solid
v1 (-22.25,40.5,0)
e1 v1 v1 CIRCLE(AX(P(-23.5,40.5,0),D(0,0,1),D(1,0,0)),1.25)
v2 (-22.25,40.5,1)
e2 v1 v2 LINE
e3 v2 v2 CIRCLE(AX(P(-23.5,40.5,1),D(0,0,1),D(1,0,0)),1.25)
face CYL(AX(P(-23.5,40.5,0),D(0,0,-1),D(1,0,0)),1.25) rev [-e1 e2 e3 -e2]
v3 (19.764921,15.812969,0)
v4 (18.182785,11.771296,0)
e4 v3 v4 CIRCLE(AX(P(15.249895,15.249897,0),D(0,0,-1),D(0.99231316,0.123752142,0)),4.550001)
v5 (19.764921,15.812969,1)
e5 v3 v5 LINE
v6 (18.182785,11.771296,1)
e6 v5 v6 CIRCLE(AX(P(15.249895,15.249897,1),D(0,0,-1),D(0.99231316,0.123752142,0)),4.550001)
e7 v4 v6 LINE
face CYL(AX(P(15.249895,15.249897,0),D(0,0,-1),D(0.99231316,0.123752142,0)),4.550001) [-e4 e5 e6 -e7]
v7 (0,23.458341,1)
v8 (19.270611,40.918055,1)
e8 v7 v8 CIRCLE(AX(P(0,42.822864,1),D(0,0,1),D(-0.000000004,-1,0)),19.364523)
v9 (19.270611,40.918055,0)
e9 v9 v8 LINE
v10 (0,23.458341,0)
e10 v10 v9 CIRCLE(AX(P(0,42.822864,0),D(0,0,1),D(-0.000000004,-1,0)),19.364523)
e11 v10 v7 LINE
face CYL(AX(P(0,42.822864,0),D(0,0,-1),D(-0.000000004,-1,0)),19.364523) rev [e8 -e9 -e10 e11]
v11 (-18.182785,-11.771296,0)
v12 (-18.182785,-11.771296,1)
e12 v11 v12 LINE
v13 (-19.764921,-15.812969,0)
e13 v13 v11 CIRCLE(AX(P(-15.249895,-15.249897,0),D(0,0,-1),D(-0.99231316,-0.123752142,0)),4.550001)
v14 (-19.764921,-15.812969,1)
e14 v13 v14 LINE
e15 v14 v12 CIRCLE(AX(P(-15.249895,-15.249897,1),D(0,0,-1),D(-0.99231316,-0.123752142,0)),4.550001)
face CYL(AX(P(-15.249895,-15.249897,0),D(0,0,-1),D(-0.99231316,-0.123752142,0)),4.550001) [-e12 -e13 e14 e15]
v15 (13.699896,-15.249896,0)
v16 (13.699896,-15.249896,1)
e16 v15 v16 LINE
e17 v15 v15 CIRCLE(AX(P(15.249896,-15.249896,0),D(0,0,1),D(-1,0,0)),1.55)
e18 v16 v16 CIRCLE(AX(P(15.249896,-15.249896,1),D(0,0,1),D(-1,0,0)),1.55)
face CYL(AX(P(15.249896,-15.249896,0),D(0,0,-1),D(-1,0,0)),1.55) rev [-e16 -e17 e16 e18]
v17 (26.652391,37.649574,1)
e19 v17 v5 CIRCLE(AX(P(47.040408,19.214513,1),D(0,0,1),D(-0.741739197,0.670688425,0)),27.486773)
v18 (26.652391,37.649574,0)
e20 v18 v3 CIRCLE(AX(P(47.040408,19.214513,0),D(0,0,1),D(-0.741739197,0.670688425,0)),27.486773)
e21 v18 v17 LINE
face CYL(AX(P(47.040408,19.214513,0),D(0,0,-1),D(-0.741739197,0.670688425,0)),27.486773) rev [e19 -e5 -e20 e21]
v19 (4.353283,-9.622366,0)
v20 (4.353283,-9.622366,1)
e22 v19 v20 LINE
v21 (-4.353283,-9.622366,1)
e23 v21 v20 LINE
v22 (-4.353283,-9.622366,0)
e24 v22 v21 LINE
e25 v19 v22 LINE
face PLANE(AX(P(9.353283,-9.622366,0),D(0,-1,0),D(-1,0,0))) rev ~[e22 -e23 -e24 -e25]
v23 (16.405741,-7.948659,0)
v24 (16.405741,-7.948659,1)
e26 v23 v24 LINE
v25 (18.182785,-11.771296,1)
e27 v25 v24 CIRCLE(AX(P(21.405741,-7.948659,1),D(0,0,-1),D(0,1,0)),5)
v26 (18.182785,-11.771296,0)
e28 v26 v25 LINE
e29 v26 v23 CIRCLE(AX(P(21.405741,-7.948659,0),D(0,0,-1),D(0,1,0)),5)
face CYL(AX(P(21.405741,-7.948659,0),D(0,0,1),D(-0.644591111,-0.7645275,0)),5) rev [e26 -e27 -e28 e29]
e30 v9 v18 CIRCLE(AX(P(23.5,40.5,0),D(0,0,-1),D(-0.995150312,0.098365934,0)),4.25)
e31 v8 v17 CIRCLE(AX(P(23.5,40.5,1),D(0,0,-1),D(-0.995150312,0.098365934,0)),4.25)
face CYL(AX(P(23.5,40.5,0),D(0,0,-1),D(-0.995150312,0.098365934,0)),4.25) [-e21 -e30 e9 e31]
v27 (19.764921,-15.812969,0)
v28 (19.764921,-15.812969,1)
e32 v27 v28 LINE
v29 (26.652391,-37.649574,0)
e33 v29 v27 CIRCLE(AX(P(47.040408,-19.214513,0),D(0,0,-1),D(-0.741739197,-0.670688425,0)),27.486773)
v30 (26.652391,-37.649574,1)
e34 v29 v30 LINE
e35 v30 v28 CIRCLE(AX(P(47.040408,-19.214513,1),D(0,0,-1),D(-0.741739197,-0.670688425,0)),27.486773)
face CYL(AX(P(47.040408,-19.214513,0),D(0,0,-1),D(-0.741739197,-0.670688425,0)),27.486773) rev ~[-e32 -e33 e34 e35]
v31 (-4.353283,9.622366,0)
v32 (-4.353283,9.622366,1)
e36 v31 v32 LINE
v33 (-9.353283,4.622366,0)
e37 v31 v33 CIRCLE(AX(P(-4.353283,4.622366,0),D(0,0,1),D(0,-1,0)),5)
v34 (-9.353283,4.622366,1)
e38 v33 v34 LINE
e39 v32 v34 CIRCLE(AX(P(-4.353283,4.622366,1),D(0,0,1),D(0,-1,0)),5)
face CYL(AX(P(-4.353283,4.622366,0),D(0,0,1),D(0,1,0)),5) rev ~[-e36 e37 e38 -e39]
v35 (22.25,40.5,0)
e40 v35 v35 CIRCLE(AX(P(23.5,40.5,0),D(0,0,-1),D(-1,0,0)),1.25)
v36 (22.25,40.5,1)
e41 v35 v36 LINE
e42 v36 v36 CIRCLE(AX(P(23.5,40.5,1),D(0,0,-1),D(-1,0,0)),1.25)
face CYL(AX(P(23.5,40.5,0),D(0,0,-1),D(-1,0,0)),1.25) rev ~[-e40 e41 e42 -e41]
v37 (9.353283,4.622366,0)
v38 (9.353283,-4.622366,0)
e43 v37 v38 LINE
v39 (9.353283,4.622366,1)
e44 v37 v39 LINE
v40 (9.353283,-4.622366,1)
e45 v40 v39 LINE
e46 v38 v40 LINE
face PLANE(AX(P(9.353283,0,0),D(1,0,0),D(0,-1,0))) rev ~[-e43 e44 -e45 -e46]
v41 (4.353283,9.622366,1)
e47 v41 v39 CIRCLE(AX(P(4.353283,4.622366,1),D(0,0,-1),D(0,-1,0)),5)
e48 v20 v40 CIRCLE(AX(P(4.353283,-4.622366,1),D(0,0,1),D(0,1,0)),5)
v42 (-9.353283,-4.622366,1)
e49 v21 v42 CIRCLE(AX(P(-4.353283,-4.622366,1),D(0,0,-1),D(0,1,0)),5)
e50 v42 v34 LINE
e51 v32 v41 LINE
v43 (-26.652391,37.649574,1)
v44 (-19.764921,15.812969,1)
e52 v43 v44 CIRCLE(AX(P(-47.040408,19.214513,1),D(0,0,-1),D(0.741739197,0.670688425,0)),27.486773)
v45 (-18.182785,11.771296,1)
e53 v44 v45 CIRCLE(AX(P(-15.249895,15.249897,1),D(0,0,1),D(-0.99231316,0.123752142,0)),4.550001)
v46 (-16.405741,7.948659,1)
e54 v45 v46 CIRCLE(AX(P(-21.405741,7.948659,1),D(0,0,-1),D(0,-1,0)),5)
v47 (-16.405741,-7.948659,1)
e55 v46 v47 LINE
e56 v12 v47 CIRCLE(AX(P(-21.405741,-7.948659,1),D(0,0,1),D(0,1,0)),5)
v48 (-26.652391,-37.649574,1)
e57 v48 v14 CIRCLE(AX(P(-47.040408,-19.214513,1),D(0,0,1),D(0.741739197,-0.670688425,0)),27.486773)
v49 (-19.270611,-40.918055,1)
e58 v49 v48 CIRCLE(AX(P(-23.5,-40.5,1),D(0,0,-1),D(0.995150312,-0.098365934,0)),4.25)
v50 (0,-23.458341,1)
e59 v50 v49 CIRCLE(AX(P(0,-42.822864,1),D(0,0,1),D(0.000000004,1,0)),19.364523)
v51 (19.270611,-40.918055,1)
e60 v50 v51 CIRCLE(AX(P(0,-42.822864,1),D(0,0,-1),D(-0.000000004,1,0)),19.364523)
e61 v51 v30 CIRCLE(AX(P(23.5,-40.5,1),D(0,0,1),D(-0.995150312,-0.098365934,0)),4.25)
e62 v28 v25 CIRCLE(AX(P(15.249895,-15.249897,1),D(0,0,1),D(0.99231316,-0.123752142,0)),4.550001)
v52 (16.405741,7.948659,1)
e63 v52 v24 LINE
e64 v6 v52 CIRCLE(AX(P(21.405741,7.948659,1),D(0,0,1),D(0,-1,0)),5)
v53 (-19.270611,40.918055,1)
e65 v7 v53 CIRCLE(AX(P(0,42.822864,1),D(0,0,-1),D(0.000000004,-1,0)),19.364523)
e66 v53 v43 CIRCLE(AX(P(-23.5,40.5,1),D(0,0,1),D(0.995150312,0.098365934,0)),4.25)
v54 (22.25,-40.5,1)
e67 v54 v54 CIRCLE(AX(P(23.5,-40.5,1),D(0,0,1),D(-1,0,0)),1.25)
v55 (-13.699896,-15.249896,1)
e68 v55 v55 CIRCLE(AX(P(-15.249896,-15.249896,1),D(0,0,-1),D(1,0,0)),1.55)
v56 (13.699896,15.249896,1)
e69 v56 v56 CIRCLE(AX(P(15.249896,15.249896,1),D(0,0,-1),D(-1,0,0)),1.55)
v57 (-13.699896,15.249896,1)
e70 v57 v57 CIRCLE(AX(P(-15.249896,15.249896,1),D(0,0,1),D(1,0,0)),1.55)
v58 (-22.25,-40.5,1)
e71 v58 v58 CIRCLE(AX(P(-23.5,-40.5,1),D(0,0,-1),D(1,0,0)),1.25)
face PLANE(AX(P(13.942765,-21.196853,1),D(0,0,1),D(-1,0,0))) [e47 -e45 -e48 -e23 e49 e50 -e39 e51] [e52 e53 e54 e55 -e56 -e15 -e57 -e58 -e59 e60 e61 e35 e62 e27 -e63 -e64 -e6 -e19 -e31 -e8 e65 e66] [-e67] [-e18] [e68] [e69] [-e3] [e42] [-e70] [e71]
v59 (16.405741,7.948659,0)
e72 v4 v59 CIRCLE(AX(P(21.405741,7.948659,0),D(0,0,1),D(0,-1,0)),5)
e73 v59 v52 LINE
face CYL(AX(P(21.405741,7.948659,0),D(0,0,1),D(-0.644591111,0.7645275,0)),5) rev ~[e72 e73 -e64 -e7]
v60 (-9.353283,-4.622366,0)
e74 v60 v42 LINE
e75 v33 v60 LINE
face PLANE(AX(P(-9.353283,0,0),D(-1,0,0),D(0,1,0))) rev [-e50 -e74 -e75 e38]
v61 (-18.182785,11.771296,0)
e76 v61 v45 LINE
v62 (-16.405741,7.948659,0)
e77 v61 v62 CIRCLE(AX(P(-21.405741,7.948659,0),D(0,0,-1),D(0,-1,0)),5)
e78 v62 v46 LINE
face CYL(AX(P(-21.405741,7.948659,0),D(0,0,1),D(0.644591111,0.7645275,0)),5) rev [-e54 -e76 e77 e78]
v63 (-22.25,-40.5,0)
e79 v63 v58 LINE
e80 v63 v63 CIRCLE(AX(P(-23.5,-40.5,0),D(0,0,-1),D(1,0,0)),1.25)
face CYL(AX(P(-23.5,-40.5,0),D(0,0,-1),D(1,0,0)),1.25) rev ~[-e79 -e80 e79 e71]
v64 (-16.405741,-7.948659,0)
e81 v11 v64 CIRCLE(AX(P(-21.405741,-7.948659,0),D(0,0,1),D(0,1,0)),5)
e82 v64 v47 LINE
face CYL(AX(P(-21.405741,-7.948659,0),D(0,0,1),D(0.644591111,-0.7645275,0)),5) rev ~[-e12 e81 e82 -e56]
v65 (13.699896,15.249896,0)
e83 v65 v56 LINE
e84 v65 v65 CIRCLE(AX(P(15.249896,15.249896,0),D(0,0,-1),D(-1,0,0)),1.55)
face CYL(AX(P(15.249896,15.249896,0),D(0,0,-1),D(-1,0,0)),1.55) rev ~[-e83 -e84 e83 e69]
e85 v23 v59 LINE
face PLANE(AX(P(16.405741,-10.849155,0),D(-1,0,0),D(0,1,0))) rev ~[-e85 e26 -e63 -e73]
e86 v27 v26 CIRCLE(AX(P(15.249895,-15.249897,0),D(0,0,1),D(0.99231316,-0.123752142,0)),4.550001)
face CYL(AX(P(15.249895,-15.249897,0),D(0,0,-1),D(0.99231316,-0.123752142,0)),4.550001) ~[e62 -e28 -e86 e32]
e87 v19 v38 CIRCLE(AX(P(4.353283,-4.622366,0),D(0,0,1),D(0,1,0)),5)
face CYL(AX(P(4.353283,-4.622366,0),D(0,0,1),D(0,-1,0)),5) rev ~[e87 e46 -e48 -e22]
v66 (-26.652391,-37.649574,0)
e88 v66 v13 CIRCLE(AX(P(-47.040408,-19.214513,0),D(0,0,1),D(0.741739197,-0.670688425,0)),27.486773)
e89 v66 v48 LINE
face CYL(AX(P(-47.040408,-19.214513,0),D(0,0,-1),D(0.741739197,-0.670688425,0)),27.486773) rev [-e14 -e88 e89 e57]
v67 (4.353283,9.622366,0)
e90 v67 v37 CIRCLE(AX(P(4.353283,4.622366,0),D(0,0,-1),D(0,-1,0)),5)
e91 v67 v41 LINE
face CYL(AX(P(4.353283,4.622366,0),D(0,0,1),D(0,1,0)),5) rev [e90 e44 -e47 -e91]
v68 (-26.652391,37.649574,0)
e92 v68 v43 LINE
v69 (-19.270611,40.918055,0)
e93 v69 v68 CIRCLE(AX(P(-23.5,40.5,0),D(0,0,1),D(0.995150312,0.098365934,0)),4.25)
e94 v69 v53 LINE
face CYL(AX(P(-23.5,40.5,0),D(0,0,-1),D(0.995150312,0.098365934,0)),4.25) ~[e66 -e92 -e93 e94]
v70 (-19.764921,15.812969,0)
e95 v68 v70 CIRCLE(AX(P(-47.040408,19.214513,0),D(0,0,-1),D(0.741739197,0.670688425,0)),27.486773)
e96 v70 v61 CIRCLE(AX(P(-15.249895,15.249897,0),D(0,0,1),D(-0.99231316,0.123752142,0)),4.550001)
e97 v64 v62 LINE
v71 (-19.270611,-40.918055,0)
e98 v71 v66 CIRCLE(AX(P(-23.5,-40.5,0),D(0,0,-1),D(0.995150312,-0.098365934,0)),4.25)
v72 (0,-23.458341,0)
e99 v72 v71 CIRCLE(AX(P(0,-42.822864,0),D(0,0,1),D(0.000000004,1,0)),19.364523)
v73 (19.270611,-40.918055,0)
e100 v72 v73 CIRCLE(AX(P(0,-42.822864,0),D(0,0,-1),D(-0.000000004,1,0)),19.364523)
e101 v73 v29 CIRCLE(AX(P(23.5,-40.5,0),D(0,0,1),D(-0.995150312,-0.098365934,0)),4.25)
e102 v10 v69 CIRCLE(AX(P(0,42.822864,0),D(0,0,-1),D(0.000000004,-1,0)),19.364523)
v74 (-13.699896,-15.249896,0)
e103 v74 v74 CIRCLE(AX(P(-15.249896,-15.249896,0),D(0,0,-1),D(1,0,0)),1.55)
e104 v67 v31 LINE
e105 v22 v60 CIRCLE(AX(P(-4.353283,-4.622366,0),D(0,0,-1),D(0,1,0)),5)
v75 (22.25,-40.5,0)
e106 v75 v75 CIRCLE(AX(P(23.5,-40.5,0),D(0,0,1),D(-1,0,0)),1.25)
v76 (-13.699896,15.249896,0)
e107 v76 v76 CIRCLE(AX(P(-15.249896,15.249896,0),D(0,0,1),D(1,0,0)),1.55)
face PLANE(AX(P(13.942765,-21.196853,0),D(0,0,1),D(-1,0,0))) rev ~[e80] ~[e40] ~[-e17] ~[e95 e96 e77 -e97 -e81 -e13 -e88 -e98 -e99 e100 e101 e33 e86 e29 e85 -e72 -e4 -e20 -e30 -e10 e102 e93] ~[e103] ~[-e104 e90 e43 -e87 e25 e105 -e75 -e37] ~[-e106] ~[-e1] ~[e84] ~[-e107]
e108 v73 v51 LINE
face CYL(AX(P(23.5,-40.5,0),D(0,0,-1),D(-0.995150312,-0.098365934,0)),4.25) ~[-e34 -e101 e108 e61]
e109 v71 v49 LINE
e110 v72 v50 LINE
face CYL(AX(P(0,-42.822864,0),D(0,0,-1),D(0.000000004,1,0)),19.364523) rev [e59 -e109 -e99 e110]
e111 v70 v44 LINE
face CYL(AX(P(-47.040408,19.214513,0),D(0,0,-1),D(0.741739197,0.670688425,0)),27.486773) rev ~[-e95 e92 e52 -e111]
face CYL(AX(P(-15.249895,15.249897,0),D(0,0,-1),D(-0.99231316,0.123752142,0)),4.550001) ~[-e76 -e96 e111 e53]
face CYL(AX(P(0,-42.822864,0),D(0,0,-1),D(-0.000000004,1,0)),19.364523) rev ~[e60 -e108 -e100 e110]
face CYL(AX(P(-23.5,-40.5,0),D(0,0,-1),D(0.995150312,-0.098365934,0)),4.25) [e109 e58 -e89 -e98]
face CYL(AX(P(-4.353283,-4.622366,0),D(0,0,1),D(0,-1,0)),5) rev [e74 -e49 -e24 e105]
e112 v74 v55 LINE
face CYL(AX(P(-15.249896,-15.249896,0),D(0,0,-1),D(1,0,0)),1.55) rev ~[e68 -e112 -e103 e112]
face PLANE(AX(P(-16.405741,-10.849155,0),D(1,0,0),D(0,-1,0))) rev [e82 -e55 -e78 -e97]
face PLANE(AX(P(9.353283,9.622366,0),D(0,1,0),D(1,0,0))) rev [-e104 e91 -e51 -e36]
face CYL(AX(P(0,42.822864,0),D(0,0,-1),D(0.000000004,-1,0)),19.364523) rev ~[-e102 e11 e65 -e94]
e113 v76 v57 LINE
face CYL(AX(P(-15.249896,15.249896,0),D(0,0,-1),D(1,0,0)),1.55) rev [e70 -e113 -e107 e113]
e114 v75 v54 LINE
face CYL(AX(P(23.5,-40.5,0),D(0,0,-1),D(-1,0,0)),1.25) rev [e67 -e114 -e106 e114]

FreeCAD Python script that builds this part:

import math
import FreeCAD as App
import Part
import Sketcher


def edges_at(feature, points):
    """Names of the edges that pass closest to the given points."""
    edges = feature.Shape.Edges
    near = lambda p: min(range(len(edges)), key=lambda i: edges[i].distToShape(Part.Vertex(*p))[0])
    return sorted({f"Edge{near(p) + 1}" for p in points})

doc = App.newDocument("Part")
body = doc.addObject("PartDesign::Body", "Body")

# Sketch on XY plane
sketch1 = body.newObject("Sketcher::SketchObject", "Sketch")
sketch1.AttachmentSupport = (doc.getObject("XY_Plane"), [""])
sketch1.MapMode = "FlatFace"
sketch1.addGeometry([
    Part.ArcOfCircle(Part.Circle(App.Vector(0, 42.822864, 0), App.Vector(0, 0, 1), 19.364523), math.radians(-174.35492), math.radians(-90)),  # 0
    Part.ArcOfCircle(Part.Circle(App.Vector(-23.5, 40.5, 0), App.Vector(0, 0, 1), 4.25), math.radians(5.645081), math.radians(222.120222)),  # 1
    Part.ArcOfCircle(Part.Circle(App.Vector(-47.040408, 19.214513, 0), App.Vector(0, 0, 1), 27.486773), math.radians(-7.108694), math.radians(42.12022)),  # 2
    Part.ArcOfCircle(Part.Circle(App.Vector(-15.249895, 15.249897, 0), App.Vector(0, 0, 1), 4.550001), math.radians(172.891301), math.radians(255.283769)),  # 3
    Part.LineSegment(App.Vector(-16.405741, 10.849155, 0), App.Vector(-16.405741, 0, 0)),  # 4
    Part.LineSegment(App.Vector(-16.405741, 0, 0), App.Vector(-9.353283, 0, 0)),  # 5
    Part.LineSegment(App.Vector(-9.353283, 0, 0), App.Vector(-9.353283, 9.622366, 0)),  # 6
    Part.LineSegment(App.Vector(-9.353283, 9.622366, 0), App.Vector(0, 9.622366, 0)),  # 7
    Part.LineSegment(App.Vector(0, 9.622366, 0), App.Vector(0, 23.458341, 0)),  # 8
    Part.Circle(App.Vector(-15.249896, 15.249896, 0), App.Vector(0, 0, 1), 1.55),  # 9
    Part.Circle(App.Vector(-23.5, 40.5, 0), App.Vector(0, 0, 1), 1.25),  # 10
], False)
sketch1.addConstraint([
    Sketcher.Constraint("Tangent", 0, 1, 1, 1),
    Sketcher.Constraint("Tangent", 1, 2, 2, 2),
    Sketcher.Constraint("Tangent", 2, 1, 3, 1),
    Sketcher.Constraint("Coincident", 3, 2, 4, 1),
    Sketcher.Constraint("Coincident", 4, 2, 5, 1),
    Sketcher.Constraint("Coincident", 5, 2, 6, 1),
    Sketcher.Constraint("Coincident", 6, 2, 7, 1),
    Sketcher.Constraint("Coincident", 7, 2, 8, 1),
    Sketcher.Constraint("Coincident", 8, 2, 0, 2),
    Sketcher.Constraint("Vertical", 4),
    Sketcher.Constraint("Horizontal", 5),
    Sketcher.Constraint("Vertical", 6),
    Sketcher.Constraint("Horizontal", 7),
    Sketcher.Constraint("Vertical", 8),
    Sketcher.Constraint("Coincident", 9, 3, 3, 3),
    Sketcher.Constraint("Coincident", 10, 3, 1, 3),
    Sketcher.Constraint("PointOnObject", 0, 3, -2),
    Sketcher.Constraint("PointOnObject", 4, 2, -1),
    Sketcher.Constraint("PointOnObject", 7, 2, -2),
    Sketcher.Constraint("Diameter", 9, 3.1),
    Sketcher.Constraint("Diameter", 10, 2.5),
    Sketcher.Constraint("Radius", 1, 4.25),
    Sketcher.Constraint("Radius", 3, 4.550001),
    Sketcher.Constraint("DistanceX", 1, 3, -1, 1, 23.5),
    Sketcher.Constraint("DistanceY", -1, 1, 1, 3, 40.5),
    Sketcher.Constraint("Radius", 0, 19.364523),
    Sketcher.Constraint("Radius", 2, 27.486773),
    Sketcher.Constraint("DistanceY", 3, 2, 0, 1, 30.0689),
    Sketcher.Constraint("DistanceX", 5, 1, 5, 2, 7.052458),
    Sketcher.Constraint("DistanceX", 7, 1, 7, 2, 9.353283),
    Sketcher.Constraint("DistanceY", 6, 1, 6, 2, 9.622366),
    Sketcher.Constraint("DistanceX", 2, 3, -1, 1, 47.040408),
])
pad1 = body.newObject("PartDesign::Pad", "Pad")
pad1.Profile = sketch1
pad1.Length = 1
doc.recompute()

fillet = body.newObject("PartDesign::Fillet", "Fillet")
fillet.Base = (pad1, edges_at(pad1, [(-9.353, 9.622, 0.5), (-16.406, 10.849, 0.5)]))
fillet.Radius = 5
body2 = doc.addObject("PartDesign::Body", "Body001")
doc.recompute()

body2.BaseFeature = body
doc.recompute()

mirroring = doc.addObject("Part::Mirroring", "Mirroring")
mirroring.Source = body
mirroring.Base = App.Vector(-12.879512, 0, 0.5)
mirroring.Normal = App.Vector(0, -1, 0)
body3 = doc.addObject("PartDesign::Body", "Body002")
body3.BaseFeature = mirroring
boolean = body2.newObject("PartDesign::Boolean", "Boolean")
boolean.Type = "Fuse"
boolean.addObjects([body3])
doc.recompute()
body4 = doc.addObject("PartDesign::Body", "Body003")
doc.recompute()

body4.BaseFeature = body2
doc.recompute()

mirroring2 = doc.addObject("Part::Mirroring", "Mirroring001")
mirroring2.Source = body2
mirroring2.Base = App.Vector(0, 16.540354, 0.5)
mirroring2.Normal = App.Vector(1, 0, 0)
body5 = doc.addObject("PartDesign::Body", "Body004")
body5.BaseFeature = mirroring2
boolean2 = body4.newObject("PartDesign::Boolean", "Boolean001")
boolean2.Type = "Fuse"
boolean2.addObjects([body5])
doc.recompute()
mirroring.Visibility = False
mirroring2.Visibility = False

doc.recompute()
